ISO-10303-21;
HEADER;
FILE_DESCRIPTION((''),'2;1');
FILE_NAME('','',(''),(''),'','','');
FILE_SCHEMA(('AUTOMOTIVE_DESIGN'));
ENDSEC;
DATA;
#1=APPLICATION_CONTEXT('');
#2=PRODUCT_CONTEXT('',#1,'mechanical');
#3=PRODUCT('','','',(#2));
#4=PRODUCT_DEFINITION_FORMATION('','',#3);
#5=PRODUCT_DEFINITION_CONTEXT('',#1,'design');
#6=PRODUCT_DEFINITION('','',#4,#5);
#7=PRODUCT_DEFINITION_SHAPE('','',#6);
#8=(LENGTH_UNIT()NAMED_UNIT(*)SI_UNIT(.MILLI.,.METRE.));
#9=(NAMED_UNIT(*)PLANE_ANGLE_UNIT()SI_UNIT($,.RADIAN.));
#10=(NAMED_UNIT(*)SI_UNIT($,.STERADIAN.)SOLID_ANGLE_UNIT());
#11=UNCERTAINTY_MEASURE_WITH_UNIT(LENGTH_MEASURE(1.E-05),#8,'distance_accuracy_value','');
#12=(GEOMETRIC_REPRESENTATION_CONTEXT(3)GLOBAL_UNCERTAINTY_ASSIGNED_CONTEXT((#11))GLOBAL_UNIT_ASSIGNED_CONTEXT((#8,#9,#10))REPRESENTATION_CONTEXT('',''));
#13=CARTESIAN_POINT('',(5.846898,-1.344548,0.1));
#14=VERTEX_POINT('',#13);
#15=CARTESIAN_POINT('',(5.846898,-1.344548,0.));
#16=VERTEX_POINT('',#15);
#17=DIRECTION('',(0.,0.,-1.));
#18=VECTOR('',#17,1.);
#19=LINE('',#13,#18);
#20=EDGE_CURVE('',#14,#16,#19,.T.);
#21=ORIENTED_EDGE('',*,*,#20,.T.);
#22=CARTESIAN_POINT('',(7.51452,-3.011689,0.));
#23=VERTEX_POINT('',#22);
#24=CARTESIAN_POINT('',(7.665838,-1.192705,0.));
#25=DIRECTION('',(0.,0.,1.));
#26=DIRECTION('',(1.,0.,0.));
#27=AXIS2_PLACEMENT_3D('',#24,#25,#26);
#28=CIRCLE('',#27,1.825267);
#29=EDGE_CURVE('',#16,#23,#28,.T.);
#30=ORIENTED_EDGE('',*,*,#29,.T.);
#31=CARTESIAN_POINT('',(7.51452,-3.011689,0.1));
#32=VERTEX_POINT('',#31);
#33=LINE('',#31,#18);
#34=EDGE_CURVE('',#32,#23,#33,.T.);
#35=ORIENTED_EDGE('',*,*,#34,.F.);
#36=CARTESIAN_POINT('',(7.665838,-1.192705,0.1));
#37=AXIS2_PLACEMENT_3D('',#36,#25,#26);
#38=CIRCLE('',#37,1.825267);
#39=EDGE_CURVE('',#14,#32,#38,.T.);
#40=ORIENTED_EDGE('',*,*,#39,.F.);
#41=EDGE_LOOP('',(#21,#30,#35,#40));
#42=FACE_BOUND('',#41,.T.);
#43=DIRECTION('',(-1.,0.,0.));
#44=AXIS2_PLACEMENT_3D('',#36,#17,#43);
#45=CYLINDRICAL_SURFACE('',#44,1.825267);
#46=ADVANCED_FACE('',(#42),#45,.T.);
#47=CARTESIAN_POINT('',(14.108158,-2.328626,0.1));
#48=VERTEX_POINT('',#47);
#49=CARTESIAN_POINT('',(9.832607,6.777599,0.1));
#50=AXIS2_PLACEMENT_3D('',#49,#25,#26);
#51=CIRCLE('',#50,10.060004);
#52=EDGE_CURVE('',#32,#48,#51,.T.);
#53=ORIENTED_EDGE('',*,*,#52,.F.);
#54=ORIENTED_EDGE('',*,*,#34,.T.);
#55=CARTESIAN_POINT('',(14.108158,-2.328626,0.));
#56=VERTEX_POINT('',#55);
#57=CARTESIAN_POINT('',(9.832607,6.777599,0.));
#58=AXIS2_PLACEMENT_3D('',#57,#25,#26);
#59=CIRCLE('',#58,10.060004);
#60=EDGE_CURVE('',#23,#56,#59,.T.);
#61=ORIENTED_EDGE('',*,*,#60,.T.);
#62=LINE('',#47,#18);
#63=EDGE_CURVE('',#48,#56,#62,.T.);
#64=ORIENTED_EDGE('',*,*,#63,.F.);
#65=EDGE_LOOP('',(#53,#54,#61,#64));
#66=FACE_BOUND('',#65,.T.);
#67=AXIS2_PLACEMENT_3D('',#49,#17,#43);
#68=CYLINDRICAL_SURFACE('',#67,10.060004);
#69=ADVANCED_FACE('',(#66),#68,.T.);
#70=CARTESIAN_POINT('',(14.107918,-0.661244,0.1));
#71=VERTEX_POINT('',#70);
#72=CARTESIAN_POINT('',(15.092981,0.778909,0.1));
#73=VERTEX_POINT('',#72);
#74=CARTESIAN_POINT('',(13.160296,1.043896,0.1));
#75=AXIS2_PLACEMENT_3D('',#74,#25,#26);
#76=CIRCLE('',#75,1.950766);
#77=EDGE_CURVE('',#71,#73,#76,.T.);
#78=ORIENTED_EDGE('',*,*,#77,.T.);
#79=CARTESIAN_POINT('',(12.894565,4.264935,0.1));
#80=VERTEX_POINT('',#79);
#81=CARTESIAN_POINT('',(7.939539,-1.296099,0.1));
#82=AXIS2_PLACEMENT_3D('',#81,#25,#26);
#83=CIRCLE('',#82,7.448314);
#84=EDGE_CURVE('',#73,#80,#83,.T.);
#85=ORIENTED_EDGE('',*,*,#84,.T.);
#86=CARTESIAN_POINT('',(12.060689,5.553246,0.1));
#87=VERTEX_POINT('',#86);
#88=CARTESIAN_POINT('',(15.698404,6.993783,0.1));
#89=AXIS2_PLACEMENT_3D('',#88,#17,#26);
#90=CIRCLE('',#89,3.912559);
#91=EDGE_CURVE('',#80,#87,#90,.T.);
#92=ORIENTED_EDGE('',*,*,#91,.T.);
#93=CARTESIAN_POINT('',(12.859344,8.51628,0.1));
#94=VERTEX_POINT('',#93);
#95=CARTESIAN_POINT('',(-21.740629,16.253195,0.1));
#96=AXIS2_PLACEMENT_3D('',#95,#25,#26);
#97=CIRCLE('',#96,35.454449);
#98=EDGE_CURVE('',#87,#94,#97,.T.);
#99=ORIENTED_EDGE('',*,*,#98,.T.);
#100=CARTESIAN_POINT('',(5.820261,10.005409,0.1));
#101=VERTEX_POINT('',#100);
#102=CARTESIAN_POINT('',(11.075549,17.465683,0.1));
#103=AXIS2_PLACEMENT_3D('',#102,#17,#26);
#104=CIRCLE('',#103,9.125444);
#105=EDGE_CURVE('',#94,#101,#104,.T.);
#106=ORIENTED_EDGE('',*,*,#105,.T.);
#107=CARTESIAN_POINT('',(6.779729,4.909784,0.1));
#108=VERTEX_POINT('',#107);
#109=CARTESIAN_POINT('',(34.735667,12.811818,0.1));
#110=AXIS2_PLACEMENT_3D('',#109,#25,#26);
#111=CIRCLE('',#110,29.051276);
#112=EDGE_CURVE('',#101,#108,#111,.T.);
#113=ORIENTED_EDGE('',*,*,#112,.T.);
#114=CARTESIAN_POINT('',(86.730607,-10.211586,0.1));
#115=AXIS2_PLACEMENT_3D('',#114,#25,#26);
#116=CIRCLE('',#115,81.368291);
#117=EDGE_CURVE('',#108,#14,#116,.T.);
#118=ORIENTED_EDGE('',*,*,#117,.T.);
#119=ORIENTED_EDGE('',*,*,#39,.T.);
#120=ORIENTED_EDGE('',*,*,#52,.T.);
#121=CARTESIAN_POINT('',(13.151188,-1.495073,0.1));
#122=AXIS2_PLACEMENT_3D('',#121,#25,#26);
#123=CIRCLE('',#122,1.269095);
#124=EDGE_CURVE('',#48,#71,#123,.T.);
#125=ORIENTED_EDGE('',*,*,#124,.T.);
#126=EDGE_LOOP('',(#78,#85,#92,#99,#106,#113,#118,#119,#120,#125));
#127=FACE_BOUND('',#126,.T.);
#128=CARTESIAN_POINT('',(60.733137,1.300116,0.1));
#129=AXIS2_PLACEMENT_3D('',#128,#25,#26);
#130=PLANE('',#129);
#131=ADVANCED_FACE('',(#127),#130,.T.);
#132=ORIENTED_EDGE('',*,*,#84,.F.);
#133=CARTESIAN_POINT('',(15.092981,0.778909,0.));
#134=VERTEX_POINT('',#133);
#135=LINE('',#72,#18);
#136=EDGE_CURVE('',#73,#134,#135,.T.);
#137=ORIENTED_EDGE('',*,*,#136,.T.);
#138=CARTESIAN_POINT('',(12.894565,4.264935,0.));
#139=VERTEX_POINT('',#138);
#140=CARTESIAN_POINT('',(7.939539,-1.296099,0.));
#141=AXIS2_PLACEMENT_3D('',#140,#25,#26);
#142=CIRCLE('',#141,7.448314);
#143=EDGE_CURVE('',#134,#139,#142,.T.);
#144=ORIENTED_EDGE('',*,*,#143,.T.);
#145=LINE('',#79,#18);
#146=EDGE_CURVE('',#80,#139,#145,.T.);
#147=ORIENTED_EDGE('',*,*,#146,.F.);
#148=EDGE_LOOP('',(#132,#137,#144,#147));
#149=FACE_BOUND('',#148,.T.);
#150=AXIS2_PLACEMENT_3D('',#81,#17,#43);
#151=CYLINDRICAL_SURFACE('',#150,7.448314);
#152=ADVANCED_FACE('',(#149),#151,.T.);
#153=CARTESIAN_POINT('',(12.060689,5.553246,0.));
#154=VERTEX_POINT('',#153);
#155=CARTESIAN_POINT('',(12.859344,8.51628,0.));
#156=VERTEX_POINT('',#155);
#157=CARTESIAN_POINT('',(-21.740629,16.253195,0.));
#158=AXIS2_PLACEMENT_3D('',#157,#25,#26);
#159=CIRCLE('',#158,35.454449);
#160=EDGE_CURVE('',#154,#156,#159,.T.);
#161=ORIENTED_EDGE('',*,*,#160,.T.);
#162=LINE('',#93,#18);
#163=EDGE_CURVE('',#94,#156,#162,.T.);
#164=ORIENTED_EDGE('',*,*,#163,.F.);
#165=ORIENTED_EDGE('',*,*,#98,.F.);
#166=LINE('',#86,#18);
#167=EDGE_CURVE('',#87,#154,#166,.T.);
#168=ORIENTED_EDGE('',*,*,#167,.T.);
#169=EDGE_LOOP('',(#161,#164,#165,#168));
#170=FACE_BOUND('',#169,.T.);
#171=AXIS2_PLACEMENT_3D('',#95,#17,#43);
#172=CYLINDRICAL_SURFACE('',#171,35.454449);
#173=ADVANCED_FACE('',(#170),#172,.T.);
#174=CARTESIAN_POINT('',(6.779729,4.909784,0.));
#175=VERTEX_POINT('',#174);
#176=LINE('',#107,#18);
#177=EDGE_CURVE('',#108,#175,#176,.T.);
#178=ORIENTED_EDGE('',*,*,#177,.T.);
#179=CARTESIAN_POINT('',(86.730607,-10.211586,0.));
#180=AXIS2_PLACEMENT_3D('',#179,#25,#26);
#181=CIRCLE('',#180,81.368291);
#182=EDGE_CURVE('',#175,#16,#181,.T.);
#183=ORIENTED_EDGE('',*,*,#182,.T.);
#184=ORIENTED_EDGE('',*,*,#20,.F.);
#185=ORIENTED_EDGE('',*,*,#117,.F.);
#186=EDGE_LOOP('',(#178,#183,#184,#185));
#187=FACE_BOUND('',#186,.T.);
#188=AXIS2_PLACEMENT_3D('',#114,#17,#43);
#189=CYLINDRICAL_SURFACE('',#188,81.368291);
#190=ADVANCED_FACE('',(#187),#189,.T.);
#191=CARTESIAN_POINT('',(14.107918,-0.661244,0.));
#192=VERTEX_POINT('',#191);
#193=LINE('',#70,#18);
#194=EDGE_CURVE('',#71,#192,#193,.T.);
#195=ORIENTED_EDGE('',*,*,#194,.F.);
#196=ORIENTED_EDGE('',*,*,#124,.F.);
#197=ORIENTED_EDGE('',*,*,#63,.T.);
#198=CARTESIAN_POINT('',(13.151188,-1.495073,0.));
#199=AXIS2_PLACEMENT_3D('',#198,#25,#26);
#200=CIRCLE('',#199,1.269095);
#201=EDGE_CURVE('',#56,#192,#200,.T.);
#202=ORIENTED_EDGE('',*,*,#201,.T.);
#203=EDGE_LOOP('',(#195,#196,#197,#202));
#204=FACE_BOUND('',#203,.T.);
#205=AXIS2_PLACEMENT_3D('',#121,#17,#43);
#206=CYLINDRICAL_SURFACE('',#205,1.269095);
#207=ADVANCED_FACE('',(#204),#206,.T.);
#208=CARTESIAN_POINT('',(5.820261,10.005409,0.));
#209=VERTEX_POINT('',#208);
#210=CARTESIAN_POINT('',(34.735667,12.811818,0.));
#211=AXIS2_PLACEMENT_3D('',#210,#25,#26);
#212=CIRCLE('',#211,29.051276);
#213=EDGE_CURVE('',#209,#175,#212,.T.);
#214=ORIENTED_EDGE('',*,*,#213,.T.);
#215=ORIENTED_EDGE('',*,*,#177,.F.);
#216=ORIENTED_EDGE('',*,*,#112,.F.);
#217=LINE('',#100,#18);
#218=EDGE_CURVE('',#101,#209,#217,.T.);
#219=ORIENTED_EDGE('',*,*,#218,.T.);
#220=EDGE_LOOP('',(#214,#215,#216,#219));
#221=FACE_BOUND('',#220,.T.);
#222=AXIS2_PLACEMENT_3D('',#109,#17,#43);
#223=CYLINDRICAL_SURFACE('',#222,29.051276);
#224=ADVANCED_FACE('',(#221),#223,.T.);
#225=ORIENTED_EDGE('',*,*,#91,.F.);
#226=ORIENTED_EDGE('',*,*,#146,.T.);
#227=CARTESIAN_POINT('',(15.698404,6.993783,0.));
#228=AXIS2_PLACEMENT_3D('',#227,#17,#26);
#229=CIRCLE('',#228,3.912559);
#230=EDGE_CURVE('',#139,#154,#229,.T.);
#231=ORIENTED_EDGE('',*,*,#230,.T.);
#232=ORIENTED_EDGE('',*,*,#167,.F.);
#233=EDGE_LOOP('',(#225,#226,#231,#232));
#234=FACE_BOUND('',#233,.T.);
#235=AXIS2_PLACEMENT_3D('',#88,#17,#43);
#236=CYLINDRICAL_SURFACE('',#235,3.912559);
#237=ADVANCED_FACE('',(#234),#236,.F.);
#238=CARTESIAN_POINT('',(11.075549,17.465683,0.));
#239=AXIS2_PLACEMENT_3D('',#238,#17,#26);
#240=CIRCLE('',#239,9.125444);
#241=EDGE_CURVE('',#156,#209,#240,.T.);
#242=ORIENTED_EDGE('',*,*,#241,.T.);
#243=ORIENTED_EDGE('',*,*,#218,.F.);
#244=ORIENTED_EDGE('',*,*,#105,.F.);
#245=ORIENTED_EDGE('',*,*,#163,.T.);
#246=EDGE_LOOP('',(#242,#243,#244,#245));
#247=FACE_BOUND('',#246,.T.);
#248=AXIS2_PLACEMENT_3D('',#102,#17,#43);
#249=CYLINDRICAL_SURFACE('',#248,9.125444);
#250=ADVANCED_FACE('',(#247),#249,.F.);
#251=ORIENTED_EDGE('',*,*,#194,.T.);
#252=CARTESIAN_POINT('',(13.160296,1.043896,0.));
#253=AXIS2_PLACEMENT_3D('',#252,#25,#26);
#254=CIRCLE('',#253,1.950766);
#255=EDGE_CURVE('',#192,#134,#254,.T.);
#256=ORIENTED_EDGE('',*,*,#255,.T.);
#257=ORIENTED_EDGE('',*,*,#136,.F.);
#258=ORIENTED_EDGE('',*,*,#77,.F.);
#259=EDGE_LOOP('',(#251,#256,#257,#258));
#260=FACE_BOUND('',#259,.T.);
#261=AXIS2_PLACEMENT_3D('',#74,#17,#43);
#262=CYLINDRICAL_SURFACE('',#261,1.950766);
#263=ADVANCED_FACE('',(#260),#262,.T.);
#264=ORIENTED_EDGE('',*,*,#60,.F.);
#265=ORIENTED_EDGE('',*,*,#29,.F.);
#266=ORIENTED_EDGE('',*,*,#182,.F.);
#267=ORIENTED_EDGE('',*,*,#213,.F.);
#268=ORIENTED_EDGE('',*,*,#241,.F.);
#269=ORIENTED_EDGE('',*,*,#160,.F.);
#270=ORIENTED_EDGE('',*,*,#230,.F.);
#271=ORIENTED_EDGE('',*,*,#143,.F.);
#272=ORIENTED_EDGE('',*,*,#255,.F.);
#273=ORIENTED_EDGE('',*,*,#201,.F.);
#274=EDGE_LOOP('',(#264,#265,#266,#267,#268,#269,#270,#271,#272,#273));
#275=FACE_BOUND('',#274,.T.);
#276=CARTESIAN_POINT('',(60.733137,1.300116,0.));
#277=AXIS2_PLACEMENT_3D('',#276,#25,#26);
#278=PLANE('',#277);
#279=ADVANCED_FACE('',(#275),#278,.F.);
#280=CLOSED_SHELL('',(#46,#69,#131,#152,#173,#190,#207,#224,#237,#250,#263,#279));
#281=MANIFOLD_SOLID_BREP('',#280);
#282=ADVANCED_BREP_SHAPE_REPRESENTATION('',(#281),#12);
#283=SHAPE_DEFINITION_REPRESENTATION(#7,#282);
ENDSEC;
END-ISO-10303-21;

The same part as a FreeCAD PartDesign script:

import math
import FreeCAD as App
import Part
import Sketcher
from FreeCAD import Vector
Q = App.Units.Quantity

doc = App.newDocument("Part")
params = doc.addObject("Spreadsheet::Sheet", "Params")
for row, (alias, value) in enumerate([
    ("pad1_length", "0.1 mm"),
], start=1):
    params.set(f"A{row}", alias)
    params.set(f"B{row}", "=" + value)
    params.setAlias(f"B{row}", alias)

body = doc.addObject("PartDesign::Body", "Body")

# Sketch on XY plane
sketch1 = body.newObject("Sketcher::SketchObject", "Sketch")
sketch1.AttachmentSupport = (doc.getObject("XY_Plane"), [""])
sketch1.MapMode = "FlatFace"
sketch1.addGeometry([
    Part.ArcOfCircle(Part.Circle(Vector(11.075549, 17.465683, 0), Vector(0, 0, 1), 9.125444), math.radians(-125.162256), math.radians(-78.727533)),  # 0
    Part.ArcOfCircle(Part.Circle(Vector(34.735667, 12.811819, 0), Vector(0, 0, 1), 29.051276), math.radians(-174.456472), math.radians(-164.216508)),  # 1
    Part.ArcOfCircle(Part.Circle(Vector(86.730607, -10.211586, 0), Vector(0, 0, 1), 81.368291), math.radians(169.289971), math.radians(173.743819)),  # 2
    Part.ArcOfCircle(Part.Circle(Vector(7.665838, -1.192705, 0), Vector(0, 0, 1), 1.825267), math.radians(-175.228087), math.radians(-94.75537)),  # 3
    Part.ArcOfCircle(Part.Circle(Vector(9.832607, 6.777599, 0), Vector(0, 0, 1), 10.060004), math.radians(-103.322153), math.radians(-64.849021)),  # 4
    Part.ArcOfCircle(Part.Circle(Vector(13.151188, -1.495073, 0), Vector(0, 0, 1), 1.269095), math.radians(-41.056946), math.radians(41.07349)),  # 5
    Part.ArcOfCircle(Part.Circle(Vector(13.160296, 1.043896, 0), Vector(0, 0, 1), 1.950766), math.radians(-60.937124), math.radians(-7.807022)),  # 6
    Part.ArcOfCircle(Part.Circle(Vector(7.939539, -1.296099, 0), Vector(0, 0, 1), 7.448314), math.radians(16.175927), math.radians(48.298131)),  # 7
    Part.ArcOfCircle(Part.Circle(Vector(15.698404, 6.993783, 0), Vector(0, 0, 1), 3.912559), math.radians(-158.396418), math.radians(-135.776553)),  # 8
    Part.ArcOfCircle(Part.Circle(Vector(-21.74063, 16.253195, 0), Vector(0, 0, 1), 35.45445), math.radians(-17.565401), math.radians(-12.60458)),  # 9
], False)
sketch1.addConstraint([
    Sketcher.Constraint("Coincident", 0, 1, 1, 1),
    Sketcher.Constraint("Coincident", 1, 2, 2, 1),
    Sketcher.Constraint("Coincident", 2, 2, 3, 1),
    Sketcher.Constraint("Coincident", 3, 2, 4, 1),
    Sketcher.Constraint("Coincident", 4, 2, 5, 1),
    Sketcher.Constraint("Coincident", 5, 2, 6, 1),
    Sketcher.Constraint("Coincident", 6, 2, 7, 1),
    Sketcher.Constraint("Coincident", 7, 2, 8, 2),
    Sketcher.Constraint("Coincident", 8, 1, 9, 1),
    Sketcher.Constraint("Coincident", 9, 2, 0, 2),
    Sketcher.Constraint("Radius", 2, Q("81.368291 mm")),
    Sketcher.Constraint("Radius", 8, Q("3.912559 mm")),
    Sketcher.Constraint("Radius", 9, Q("35.45445 mm")),
    Sketcher.Constraint("Radius", 0, Q("9.125444 mm")),
    Sketcher.Constraint("Radius", 1, Q("29.051276 mm")),
    Sketcher.Constraint("Radius", 3, Q("1.825267 mm")),
    Sketcher.Constraint("Radius", 4, Q("10.060004 mm")),
    Sketcher.Constraint("Radius", 5, Q("1.269095 mm")),
    Sketcher.Constraint("Radius", 6, Q("1.950766 mm")),
    Sketcher.Constraint("Radius", 7, Q("7.448314 mm")),
    Sketcher.Constraint("DistanceX", 4, 3, 2, 3, Q("76.898001 mm")),
    Sketcher.Constraint("DistanceY", -1, 1, 4, 3, Q("6.777599 mm")),
    Sketcher.Constraint("DistanceY", 7, 3, -1, 1, Q("1.296099 mm")),
    Sketcher.Constraint("DistanceX", -1, 1, 2, 2, Q("5.846898 mm")),
    Sketcher.Constraint("DistanceY", 3, 3, 6, 3, Q("2.2366 mm")),
    Sketcher.Constraint("DistanceX", 3, 3, 7, 3, Q("0.273701 mm")),
    Sketcher.Constraint("DistanceY", 8, 3, 0, 3, Q("10.4719 mm")),
    Sketcher.Constraint("DistanceY", 3, 3, 9, 3, Q("17.4459 mm")),
    Sketcher.Constraint("DistanceX", -1, 1, 0, 3, Q("11.075549 mm")),
    Sketcher.Constraint("DistanceY", -1, 1, 1, 3, Q("12.811819 mm")),
    Sketcher.Constraint("DistanceX", -1, 1, 5, 3, Q("13.151188 mm")),
    Sketcher.Constraint("DistanceX", -1, 1, 7, 3, Q("7.939539 mm")),
    Sketcher.Constraint("DistanceX", 9, 3, -1, 1, Q("21.74063 mm")),
    Sketcher.Constraint("DistanceX", -1, 1, 0, 1, Q("5.820261 mm")),
    Sketcher.Constraint("DistanceY", -1, 1, 0, 1, Q("10.005409 mm")),
    Sketcher.Constraint("DistanceX", -1, 1, 1, 2, Q("6.779729 mm")),
    Sketcher.Constraint("DistanceX", -1, 1, 3, 2, Q("7.51452 mm")),
    Sketcher.Constraint("DistanceX", -1, 1, 4, 2, Q("14.108158 mm")),
    Sketcher.Constraint("DistanceX", -1, 1, 6, 2, Q("15.092981 mm")),
    Sketcher.Constraint("DistanceX", -1, 1, 8, 1, Q("12.060689 mm")),
])
pad1 = body.newObject("PartDesign::Pad", "Pad")
pad1.Profile = sketch1
pad1.setExpression("Length", "Params.pad1_length")

doc.recompute()
